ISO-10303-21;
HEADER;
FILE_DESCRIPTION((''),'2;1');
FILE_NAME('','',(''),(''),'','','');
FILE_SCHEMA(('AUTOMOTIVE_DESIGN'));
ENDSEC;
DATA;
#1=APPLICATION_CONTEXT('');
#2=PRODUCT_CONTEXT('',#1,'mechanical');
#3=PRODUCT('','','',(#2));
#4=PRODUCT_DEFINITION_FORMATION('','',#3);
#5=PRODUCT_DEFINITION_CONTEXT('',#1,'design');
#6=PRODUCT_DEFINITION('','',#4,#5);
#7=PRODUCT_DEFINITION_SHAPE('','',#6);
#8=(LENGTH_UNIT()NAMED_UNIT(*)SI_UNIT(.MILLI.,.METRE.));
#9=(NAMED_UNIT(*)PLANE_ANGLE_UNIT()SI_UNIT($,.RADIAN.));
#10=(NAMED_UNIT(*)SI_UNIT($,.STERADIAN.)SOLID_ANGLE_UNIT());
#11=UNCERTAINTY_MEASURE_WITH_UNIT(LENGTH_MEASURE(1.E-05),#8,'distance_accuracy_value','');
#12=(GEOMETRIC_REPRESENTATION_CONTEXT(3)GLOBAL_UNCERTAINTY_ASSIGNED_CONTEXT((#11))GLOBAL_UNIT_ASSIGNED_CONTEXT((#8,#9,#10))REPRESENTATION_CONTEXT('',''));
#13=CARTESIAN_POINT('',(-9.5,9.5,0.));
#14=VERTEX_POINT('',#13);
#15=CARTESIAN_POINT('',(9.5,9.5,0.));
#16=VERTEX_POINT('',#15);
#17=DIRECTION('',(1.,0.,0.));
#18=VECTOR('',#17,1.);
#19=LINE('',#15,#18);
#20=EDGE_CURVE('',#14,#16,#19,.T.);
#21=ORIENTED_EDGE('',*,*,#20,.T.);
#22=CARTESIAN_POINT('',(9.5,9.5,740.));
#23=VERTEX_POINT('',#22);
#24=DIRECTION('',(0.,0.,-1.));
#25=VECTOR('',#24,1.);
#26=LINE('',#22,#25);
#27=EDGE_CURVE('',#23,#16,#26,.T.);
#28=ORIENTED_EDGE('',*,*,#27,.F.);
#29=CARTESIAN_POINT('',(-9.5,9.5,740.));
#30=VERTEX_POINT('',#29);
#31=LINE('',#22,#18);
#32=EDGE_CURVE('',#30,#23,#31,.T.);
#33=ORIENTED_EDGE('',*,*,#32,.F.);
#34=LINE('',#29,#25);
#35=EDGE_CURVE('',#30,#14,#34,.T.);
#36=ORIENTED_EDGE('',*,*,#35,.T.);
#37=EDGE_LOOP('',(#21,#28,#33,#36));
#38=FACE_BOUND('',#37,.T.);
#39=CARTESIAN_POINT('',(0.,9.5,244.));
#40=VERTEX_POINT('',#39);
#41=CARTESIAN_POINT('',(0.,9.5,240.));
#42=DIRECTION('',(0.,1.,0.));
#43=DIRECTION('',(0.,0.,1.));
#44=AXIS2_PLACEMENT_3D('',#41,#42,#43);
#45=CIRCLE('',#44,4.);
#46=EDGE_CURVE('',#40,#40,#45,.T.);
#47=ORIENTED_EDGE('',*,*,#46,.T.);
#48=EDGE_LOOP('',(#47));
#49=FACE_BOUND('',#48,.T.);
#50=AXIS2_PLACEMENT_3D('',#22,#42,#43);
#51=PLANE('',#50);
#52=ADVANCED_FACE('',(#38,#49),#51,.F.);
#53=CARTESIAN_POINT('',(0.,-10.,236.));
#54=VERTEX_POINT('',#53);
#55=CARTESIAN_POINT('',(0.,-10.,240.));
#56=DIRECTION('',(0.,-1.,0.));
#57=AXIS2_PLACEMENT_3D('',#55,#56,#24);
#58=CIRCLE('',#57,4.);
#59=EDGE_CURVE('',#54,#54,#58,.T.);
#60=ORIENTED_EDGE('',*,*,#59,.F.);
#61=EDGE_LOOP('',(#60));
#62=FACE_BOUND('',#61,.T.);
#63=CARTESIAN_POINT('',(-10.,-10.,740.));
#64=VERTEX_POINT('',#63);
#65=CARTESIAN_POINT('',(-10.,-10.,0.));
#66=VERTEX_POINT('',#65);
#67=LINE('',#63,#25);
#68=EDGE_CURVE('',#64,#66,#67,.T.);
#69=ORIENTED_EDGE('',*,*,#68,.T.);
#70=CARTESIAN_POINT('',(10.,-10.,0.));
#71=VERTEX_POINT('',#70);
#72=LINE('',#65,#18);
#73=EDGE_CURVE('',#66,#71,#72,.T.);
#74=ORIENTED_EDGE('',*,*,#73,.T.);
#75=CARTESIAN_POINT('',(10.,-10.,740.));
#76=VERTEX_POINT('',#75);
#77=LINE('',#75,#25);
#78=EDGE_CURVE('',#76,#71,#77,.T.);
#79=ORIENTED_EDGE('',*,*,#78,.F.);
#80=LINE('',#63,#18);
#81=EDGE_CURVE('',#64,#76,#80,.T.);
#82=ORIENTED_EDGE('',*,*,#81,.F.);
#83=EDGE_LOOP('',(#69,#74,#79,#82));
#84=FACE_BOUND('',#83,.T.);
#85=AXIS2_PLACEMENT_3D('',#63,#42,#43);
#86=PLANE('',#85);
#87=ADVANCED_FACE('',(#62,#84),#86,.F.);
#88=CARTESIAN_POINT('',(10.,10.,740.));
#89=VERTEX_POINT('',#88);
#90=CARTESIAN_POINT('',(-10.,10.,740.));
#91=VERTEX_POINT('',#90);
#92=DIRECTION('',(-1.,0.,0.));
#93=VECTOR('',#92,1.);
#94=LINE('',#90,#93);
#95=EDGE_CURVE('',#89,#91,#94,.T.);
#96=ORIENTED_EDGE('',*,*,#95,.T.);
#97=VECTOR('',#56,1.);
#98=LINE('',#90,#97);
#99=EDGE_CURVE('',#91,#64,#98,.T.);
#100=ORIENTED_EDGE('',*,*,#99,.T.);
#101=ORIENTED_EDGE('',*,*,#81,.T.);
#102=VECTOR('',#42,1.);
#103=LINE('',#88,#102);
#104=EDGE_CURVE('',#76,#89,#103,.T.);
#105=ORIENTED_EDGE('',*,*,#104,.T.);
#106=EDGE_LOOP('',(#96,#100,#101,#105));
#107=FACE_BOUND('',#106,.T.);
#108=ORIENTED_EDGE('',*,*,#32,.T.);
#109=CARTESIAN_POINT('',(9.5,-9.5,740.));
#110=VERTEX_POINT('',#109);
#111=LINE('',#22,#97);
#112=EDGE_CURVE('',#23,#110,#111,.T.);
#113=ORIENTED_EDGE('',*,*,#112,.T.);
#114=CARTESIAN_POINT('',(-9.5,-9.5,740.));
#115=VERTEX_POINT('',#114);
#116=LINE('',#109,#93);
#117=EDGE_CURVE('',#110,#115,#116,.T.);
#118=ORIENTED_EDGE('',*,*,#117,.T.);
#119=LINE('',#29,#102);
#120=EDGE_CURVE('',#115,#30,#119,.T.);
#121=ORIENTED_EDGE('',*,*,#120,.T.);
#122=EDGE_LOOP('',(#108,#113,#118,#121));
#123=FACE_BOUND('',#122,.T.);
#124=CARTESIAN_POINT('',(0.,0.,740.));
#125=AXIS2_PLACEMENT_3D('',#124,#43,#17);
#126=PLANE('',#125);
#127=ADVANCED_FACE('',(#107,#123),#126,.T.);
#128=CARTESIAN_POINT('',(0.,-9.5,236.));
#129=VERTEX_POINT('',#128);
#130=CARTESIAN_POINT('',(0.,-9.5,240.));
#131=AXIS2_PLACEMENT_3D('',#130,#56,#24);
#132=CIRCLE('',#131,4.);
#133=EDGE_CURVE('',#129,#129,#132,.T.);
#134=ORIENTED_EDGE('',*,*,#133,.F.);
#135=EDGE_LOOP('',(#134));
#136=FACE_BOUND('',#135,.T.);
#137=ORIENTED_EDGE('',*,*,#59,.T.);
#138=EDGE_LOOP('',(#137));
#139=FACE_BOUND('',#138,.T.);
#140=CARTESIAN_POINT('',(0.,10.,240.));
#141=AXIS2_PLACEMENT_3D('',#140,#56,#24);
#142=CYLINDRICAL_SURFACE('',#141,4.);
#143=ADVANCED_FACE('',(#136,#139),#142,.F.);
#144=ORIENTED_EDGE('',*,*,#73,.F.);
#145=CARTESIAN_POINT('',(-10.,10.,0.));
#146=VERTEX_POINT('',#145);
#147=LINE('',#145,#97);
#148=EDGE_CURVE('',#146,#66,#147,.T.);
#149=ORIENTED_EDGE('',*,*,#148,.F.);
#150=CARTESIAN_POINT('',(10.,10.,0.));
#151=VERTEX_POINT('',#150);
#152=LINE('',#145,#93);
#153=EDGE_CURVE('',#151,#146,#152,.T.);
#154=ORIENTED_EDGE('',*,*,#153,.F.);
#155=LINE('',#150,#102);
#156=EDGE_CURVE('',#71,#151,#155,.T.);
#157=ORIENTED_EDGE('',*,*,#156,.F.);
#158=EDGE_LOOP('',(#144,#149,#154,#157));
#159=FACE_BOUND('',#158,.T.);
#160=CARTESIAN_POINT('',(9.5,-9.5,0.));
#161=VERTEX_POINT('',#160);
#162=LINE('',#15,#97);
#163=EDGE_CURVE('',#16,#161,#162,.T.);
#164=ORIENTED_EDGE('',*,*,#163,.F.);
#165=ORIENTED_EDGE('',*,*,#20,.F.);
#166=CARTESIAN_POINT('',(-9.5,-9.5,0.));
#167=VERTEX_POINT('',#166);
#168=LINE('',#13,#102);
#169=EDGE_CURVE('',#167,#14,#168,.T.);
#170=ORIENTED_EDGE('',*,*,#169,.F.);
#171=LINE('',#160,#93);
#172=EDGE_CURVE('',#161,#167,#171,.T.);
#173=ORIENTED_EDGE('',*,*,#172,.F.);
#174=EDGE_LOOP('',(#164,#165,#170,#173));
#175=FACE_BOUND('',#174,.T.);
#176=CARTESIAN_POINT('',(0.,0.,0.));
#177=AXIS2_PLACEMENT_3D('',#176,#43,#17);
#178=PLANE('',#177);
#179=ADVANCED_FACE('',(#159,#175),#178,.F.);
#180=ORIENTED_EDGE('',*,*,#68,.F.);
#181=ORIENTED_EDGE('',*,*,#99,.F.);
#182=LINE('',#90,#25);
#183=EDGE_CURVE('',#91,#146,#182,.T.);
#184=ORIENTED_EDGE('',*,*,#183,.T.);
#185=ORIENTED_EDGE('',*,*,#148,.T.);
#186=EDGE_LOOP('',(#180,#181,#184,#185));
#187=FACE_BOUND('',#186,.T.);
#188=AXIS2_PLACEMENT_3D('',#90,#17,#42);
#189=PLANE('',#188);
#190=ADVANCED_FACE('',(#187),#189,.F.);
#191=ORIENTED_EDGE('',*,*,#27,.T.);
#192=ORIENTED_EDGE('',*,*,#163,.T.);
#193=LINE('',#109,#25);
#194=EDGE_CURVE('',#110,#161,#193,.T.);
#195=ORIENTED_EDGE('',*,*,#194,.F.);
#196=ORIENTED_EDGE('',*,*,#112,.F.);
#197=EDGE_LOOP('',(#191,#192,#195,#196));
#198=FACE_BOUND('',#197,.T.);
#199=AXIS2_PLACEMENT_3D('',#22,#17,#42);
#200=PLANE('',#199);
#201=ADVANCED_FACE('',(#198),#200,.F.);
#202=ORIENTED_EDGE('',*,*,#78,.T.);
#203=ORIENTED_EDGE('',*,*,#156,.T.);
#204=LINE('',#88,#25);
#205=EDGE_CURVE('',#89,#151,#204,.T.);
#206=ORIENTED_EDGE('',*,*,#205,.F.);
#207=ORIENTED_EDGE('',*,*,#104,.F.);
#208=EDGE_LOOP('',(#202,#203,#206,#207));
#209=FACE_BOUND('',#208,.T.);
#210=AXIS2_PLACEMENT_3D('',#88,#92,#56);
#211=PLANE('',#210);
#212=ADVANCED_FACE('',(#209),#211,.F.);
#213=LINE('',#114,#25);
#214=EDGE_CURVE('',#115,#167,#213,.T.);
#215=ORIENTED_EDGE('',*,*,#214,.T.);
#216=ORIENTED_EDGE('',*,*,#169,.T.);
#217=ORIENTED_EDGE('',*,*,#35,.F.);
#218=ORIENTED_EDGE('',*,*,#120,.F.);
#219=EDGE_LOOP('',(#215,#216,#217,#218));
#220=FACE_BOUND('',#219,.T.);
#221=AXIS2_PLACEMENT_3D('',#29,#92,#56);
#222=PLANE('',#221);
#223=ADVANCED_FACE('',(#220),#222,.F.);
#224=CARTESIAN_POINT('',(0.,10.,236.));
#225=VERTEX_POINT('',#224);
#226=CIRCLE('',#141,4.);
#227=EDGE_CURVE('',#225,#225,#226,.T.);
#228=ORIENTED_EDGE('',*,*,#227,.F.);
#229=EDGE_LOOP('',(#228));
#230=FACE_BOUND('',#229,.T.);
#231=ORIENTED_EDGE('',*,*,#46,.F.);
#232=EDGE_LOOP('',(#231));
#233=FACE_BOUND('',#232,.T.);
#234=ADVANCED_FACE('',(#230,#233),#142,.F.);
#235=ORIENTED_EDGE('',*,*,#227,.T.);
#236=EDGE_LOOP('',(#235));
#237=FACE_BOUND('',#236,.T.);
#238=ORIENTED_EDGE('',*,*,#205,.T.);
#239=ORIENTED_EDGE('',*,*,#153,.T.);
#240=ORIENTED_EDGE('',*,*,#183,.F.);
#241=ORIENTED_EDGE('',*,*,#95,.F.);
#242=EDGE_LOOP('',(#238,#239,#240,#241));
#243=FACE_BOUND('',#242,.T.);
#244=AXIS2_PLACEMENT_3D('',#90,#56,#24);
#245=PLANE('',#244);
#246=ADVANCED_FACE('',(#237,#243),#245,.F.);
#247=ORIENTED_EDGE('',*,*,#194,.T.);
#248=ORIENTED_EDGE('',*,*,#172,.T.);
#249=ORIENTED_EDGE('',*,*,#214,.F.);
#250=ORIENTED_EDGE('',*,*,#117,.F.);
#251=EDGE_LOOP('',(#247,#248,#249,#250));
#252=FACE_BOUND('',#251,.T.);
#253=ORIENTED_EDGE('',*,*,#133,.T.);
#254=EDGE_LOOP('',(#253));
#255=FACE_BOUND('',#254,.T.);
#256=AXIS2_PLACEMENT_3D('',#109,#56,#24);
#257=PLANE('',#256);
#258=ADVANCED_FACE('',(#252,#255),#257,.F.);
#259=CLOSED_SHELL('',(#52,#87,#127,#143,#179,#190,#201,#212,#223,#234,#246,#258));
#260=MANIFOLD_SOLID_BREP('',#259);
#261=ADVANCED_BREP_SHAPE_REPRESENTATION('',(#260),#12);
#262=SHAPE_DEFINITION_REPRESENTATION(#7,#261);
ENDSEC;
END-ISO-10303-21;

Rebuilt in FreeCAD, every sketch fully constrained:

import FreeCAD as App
import Part
import Sketcher
from FreeCAD import Vector

doc = App.newDocument("Part")
body = doc.addObject("PartDesign::Body", "Body")

# Sketch on XY plane
sketch1 = body.newObject("Sketcher::SketchObject", "Sketch")
sketch1.AttachmentSupport = (doc.getObject("XY_Plane"), [""])
sketch1.MapMode = "FlatFace"
sketch1.addGeometry([
    Part.LineSegment(Vector(-10, 10, 0), Vector(-10, -10, 0)),
    Part.LineSegment(Vector(-10, -10, 0), Vector(10, -10, 0)),
    Part.LineSegment(Vector(10, -10, 0), Vector(10, 10, 0)),
    Part.LineSegment(Vector(10, 10, 0), Vector(-10, 10, 0)),
], False)
sketch1.addConstraint([
    Sketcher.Constraint("Coincident", 0, 2, 1, 1),
    Sketcher.Constraint("Coincident", 1, 2, 2, 1),
    Sketcher.Constraint("Coincident", 2, 2, 3, 1),
    Sketcher.Constraint("Coincident", 3, 2, 0, 1),
    Sketcher.Constraint("Vertical", 0),
    Sketcher.Constraint("Horizontal", 1),
    Sketcher.Constraint("Vertical", 2),
    Sketcher.Constraint("Horizontal", 3),
    Sketcher.Constraint("Symmetric", 0, 2, 2, 2, -1, 1),
    Sketcher.Constraint("Equal", 3, 0),
    Sketcher.Constraint("DistanceX", 1, 1, 1, 2, 20.0),
])
pad1 = body.newObject("PartDesign::Pad", "Pad")
pad1.Profile = sketch1
pad1.Length = 740

# Sketch on XY plane
sketch2 = body.newObject("Sketcher::SketchObject", "Sketch001")
sketch2.AttachmentSupport = (doc.getObject("XY_Plane"), [""])
sketch2.MapMode = "FlatFace"
sketch2.addGeometry([
    Part.LineSegment(Vector(10, 10, 0), Vector(10, -10, 0)),
    Part.LineSegment(Vector(10, -10, 0), Vector(-10, -10, 0)),
    Part.LineSegment(Vector(-10, -10, 0), Vector(-10, 10, 0)),
    Part.LineSegment(Vector(-10, 10, 0), Vector(10, 10, 0)),
], False)
sketch2.addConstraint([
    Sketcher.Constraint("Coincident", 0, 2, 1, 1),
    Sketcher.Constraint("Coincident", 1, 2, 2, 1),
    Sketcher.Constraint("Coincident", 2, 2, 3, 1),
    Sketcher.Constraint("Coincident", 3, 2, 0, 1),
    Sketcher.Constraint("Vertical", 0),
    Sketcher.Constraint("Horizontal", 1),
    Sketcher.Constraint("Vertical", 2),
    Sketcher.Constraint("Horizontal", 3),
    Sketcher.Constraint("Symmetric", 0, 2, 2, 2, -1, 1),
    Sketcher.Constraint("Equal", 3, 0),
    Sketcher.Constraint("DistanceX", 1, 2, 1, 1, 19.0),
])
pocket1 = body.newObject("PartDesign::Pocket", "Pocket")
pocket1.Profile = sketch2
pocket1.Length = 740
pocket1.Reversed = True

# Sketch on XZ plane
sketch3 = body.newObject("Sketcher::SketchObject", "Sketch002")
sketch3.AttachmentSupport = (doc.getObject("XZ_Plane"), [""])
sketch3.MapMode = "FlatFace"
sketch3.AttachmentOffset = App.Placement(Vector(0, 0, 10), App.Rotation())
sketch3.addGeometry(Part.Circle(Vector(0, 240, 0), Vector(0, 0, 1), 4), False)
sketch3.addConstraint([
    Sketcher.Constraint("PointOnObject", 0, 3, -2),
    Sketcher.Constraint("Diameter", 0, 8.0),
    Sketcher.Constraint("DistanceY", -1, 1, 0, 3, 240.0),
])
pocket2 = body.newObject("PartDesign::Pocket", "Pocket001")
pocket2.Profile = sketch3
pocket2.Length = 20

doc.recompute()
